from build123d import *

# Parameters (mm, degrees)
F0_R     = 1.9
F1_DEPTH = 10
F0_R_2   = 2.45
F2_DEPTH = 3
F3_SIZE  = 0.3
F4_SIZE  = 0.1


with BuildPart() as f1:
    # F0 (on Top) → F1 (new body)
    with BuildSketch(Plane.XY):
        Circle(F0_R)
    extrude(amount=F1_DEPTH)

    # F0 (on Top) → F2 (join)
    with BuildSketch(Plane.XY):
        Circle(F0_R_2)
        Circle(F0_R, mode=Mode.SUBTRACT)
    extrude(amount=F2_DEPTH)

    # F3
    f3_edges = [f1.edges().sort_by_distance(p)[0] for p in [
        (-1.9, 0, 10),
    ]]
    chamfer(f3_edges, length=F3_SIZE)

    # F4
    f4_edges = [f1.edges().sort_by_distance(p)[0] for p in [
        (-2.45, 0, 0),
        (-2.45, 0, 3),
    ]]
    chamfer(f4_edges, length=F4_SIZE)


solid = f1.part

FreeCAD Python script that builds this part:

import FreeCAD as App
import Part
import Sketcher
from FreeCAD import Vector
Q = App.Units.Quantity


def edges_at(feature, points):
    """Names of the edges that pass closest to the given points."""
    edges = feature.Shape.Edges
    near = lambda p: min(range(len(edges)), key=lambda i: edges[i].distToShape(Part.Vertex(*p))[0])
    return sorted({f"Edge{near(p) + 1}" for p in points})

doc = App.newDocument("Part")
body = doc.addObject("PartDesign::Body", "Body")

# Sketch on XY plane
sketch1 = body.newObject("Sketcher::SketchObject", "Sketch")
sketch1.AttachmentSupport = (doc.getObject("XY_Plane"), [""])
sketch1.MapMode = "FlatFace"
sketch1.addGeometry(Part.Circle(Vector(0, 0, 0), Vector(0, 0, 1), 1.9), False)
sketch1.addConstraint([
    Sketcher.Constraint("Coincident", 0, 3, -1, 1),
    Sketcher.Constraint("Diameter", 0, Q("3.8 mm")),
])
pad1 = body.newObject("PartDesign::Pad", "Pad")
pad1.Profile = sketch1
pad1.Length = 10

# Sketch on XY plane
sketch2 = body.newObject("Sketcher::SketchObject", "Sketch001")
sketch2.AttachmentSupport = (doc.getObject("XY_Plane"), [""])
sketch2.MapMode = "FlatFace"
sketch2.addGeometry([
    Part.Circle(Vector(0, 0, 0), Vector(0, 0, 1), 2.5),
    Part.Circle(Vector(0, 0, 0), Vector(0, 0, 1), 1.9),
], False)
sketch2.addConstraint([
    Sketcher.Constraint("Coincident", 0, 3, -1, 1),
    Sketcher.Constraint("Coincident", 1, 3, -1, 1),
    Sketcher.Constraint("Diameter", 0, Q("4.9 mm")),
    Sketcher.Constraint("Diameter", 1, Q("3.8 mm")),
])
pad2 = body.newObject("PartDesign::Pad", "Pad001")
pad2.Profile = sketch2
pad2.Length = 3
doc.recompute()

chamfer = body.newObject("PartDesign::Chamfer", "Chamfer")
chamfer.Base = (pad2, edges_at(pad2, [(-1.9, 0, 10)]))
chamfer.Size = 0.3
doc.recompute()

chamfer2 = body.newObject("PartDesign::Chamfer", "Chamfer001")
chamfer2.Base = (chamfer, edges_at(chamfer, [(-2.45, 0, 0), (-2.45, 0, 3)]))
chamfer2.Size = 0.1

doc.recompute()
